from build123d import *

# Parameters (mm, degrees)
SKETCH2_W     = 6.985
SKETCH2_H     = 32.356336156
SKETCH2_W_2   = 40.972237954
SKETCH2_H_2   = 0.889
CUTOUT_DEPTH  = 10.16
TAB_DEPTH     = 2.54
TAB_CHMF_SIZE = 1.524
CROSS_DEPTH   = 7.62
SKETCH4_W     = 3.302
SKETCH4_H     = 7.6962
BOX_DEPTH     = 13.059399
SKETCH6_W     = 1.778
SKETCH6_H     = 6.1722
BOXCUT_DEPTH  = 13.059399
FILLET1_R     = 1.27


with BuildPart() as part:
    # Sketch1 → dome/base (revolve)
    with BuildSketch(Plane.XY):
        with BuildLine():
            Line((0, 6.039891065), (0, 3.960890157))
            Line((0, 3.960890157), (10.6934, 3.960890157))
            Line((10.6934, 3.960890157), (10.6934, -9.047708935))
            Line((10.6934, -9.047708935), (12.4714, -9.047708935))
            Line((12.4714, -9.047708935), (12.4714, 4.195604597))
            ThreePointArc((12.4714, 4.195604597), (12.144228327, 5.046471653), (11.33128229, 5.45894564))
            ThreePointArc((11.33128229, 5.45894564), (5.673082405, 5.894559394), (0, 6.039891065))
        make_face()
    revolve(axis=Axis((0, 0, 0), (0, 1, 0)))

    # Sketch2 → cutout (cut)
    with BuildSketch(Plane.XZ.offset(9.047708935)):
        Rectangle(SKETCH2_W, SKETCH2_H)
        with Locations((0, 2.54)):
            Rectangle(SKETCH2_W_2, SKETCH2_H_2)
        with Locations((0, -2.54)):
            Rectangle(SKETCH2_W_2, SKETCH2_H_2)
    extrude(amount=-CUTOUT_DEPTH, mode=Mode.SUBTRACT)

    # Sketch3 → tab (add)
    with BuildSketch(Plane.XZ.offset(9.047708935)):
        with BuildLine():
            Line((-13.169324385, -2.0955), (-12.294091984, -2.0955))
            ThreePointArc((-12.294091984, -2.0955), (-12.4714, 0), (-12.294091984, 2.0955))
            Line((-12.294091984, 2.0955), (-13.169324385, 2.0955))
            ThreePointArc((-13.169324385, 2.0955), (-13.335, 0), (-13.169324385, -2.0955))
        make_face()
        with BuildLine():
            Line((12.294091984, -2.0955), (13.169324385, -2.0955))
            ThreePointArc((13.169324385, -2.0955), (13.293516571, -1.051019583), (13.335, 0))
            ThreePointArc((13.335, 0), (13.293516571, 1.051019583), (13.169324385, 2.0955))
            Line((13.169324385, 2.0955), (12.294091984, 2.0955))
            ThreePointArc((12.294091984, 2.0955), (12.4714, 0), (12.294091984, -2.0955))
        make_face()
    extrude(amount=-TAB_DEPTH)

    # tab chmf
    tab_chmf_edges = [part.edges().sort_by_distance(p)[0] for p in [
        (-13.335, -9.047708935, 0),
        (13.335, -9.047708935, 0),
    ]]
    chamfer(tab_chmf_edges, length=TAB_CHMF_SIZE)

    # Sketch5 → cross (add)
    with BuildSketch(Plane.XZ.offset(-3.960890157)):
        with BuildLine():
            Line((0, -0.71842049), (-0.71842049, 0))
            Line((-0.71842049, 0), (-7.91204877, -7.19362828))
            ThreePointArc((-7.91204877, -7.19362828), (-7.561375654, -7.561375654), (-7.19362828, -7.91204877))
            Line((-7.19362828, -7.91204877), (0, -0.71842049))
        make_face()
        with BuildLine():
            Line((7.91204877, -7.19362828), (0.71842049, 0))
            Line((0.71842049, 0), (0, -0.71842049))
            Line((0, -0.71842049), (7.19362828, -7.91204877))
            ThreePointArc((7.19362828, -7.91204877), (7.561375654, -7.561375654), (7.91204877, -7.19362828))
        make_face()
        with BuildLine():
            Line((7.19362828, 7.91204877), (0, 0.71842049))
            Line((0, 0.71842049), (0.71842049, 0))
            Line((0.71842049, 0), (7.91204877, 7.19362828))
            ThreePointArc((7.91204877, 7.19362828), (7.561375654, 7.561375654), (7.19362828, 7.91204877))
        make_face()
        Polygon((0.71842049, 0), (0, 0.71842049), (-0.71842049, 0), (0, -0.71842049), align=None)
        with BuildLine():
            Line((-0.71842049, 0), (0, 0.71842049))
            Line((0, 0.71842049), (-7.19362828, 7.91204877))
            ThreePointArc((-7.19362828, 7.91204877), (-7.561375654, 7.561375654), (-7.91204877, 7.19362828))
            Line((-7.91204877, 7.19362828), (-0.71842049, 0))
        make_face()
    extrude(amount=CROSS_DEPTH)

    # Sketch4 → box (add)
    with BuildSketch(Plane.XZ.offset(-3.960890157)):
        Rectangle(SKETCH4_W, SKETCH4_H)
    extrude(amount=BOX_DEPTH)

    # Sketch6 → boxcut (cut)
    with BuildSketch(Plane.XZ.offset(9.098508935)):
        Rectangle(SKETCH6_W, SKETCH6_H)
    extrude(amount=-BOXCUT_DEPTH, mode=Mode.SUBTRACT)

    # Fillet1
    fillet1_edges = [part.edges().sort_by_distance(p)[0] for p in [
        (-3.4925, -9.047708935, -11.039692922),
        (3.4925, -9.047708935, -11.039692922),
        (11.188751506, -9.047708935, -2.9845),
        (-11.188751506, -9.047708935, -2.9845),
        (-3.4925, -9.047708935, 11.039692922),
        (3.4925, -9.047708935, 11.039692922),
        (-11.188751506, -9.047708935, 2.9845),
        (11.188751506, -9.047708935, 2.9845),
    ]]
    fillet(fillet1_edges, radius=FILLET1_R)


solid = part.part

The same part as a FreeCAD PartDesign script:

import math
import FreeCAD as App
import Part
import Sketcher
Q = App.Units.Quantity


def edges_at(feature, points):
    """Names of the edges that pass closest to the given points."""
    edges = feature.Shape.Edges
    near = lambda p: min(range(len(edges)), key=lambda i: edges[i].distToShape(Part.Vertex(*p))[0])
    return sorted({f"Edge{near(p) + 1}" for p in points})


def add_polygon(sketch, points):
    """Adds a closed chain of lines whose ends are joined by coincident constraints."""
    first, n = sketch.GeometryCount, len(points)
    for a, b in zip(points, points[1:] + points[:1]):
        sketch.addGeometry(Part.LineSegment(App.Vector(*a, 0), App.Vector(*b, 0)), False)
    for i in range(n):
        sketch.addConstraint(Sketcher.Constraint("Coincident", first + i, 2, first + (i + 1) % n, 1))

doc = App.newDocument("Part")
params = doc.addObject("Spreadsheet::Sheet", "Params")
for row, (alias, value) in enumerate([
    ("sketch1_radius", "0.05 in"),
    ("sketch1_width", "0.07 in"),
    ("sketch1_width2", "0.421 in"),
    ("revolution_angle", "360 deg"),
    ("sketch2_width", "0.275 in"),
    ("sketch2_height", "0.035 in"),
    ("pocket1_length", "0.4 in"),
    ("sketch3_radius", "0.491 in"),
    ("sketch3_radius2", "0.525 in"),
    ("pad1_length", "0.1 in"),
    ("chamfer_size", "0.06 in"),
    ("sketch4_radius", "0.421 in"),
    ("pad2_length", "0.3 in"),
    ("sketch5_width", "0.13 in"),
    ("sketch5_height", "0.303 in"),
    ("pad3_length", "13.059399 mm"),
    ("sketch6_width", "0.07 in"),
    ("sketch6_height", "0.243 in"),
    ("pocket2_length", "13.059399 mm"),
    ("fillet_radius", "0.05 in"),
], start=1):
    params.set(f"A{row}", alias)
    params.set(f"B{row}", "=" + value)
    params.setAlias(f"B{row}", alias)

body = doc.addObject("PartDesign::Body", "Body")

# Sketch on XY plane
sketch1 = body.newObject("Sketcher::SketchObject", "Sketch")
sketch1.AttachmentSupport = (doc.getObject("XY_Plane"), [""])
sketch1.MapMode = "FlatFace"
sketch1.addGeometry(Part.LineSegment(App.Vector(0, 6.039891, 0), App.Vector(0, 3.96089, 0)), False)
sketch1.addGeometry(Part.LineSegment(App.Vector(0, 3.96089, 0), App.Vector(10.6934, 3.96089, 0)), False)
sketch1.addGeometry(Part.LineSegment(App.Vector(10.6934, 3.96089, 0), App.Vector(10.6934, -9.047709, 0)), False)
sketch1.addGeometry(Part.LineSegment(App.Vector(10.6934, -9.047709, 0), App.Vector(12.4714, -9.047709, 0)), False)
sketch1.addGeometry(Part.LineSegment(App.Vector(12.4714, -9.047709, 0), App.Vector(12.4714, 4.195605, 0)), False)
sketch1.addGeometry(Part.ArcOfCircle(Part.Circle(App.Vector(11.2014, 4.195605, 0), App.Vector(0, 0, 1), 1.27), math.radians(0), math.radians(84.130125)), False)
sketch1.addGeometry(Part.ArcOfCircle(Part.Circle(App.Vector(0, -104.758345, 0), App.Vector(0, 0, 1), 110.798236), math.radians(84.130125), math.radians(90)), False)
sketch1.addConstraint(Sketcher.Constraint("Coincident", 0, 2, 1, 1))
sketch1.addConstraint(Sketcher.Constraint("Coincident", 1, 2, 2, 1))
sketch1.addConstraint(Sketcher.Constraint("Coincident", 2, 2, 3, 1))
sketch1.addConstraint(Sketcher.Constraint("Coincident", 3, 2, 4, 1))
sketch1.addConstraint(Sketcher.Constraint("Tangent", 4, 2, 5, 1))
sketch1.addConstraint(Sketcher.Constraint("Tangent", 5, 2, 6, 1))
sketch1.addConstraint(Sketcher.Constraint("Coincident", 6, 2, 0, 1))
sketch1.addConstraint(Sketcher.Constraint("Vertical", 0))
sketch1.addConstraint(Sketcher.Constraint("Horizontal", 1))
sketch1.addConstraint(Sketcher.Constraint("Vertical", 2))
sketch1.addConstraint(Sketcher.Constraint("Horizontal", 3))
sketch1.addConstraint(Sketcher.Constraint("Vertical", 4))
sketch1.addConstraint(Sketcher.Constraint("PointOnObject", 6, 3, -2))
sketch1.addConstraint(Sketcher.Constraint("PointOnObject", 0, 2, -2))
sketch1.addConstraint(Sketcher.Constraint("Radius", 5, Q("0.05 in")))
sketch1.addConstraint(Sketcher.Constraint("DistanceX", 3, 1, 3, 2, Q("0.07 in")))
sketch1.addConstraint(Sketcher.Constraint("DistanceX", 1, 1, 1, 2, Q("0.421 in")))
sketch1.addConstraint(Sketcher.Constraint("DistanceY", 0, 2, 0, 1, Q("2.079001 mm")))
sketch1.addConstraint(Sketcher.Constraint("DistanceY", 2, 2, 2, 1, Q("13.008599 mm")))
sketch1.addConstraint(Sketcher.Constraint("Radius", 6, Q("110.798236 mm")))
sketch1.addConstraint(Sketcher.Constraint("DistanceY", -1, 1, 0, 2, Q("3.96089 mm")))
sketch1.setExpression("Constraints[14]", "Params.sketch1_radius")
sketch1.setExpression("Constraints[15]", "Params.sketch1_width")
sketch1.setExpression("Constraints[16]", "Params.sketch1_width2")
revolution = body.newObject("PartDesign::Revolution", "Revolution")
revolution.Profile = sketch1
revolution.ReferenceAxis = (sketch1, ["V_Axis"])
revolution.setExpression("Angle", "Params.revolution_angle")

# Sketch on XZ plane
sketch2 = body.newObject("Sketcher::SketchObject", "Sketch001")
sketch2.AttachmentSupport = (doc.getObject("XZ_Plane"), [""])
sketch2.MapMode = "FlatFace"
sketch2.AttachmentOffset = App.Placement(App.Vector(0, 0, 9.047709), App.Rotation())
add_polygon(sketch2, [(-3.4925, -2.9845), (-3.4925, -16.178168), (3.4925, -16.178168), (3.4925, -2.9845), (20.486119, -2.9845), (20.486119, -2.0955), (3.4925, -2.0955), (3.4925, 2.0955), (20.486119, 2.0955), (20.486119, 2.9845), (3.4925, 2.9845), (3.4925, 16.178168), (-3.4925, 16.178168), (-3.4925, 2.9845), (-20.486119, 2.9845), (-20.486119, 2.0955), (-3.4925, 2.0955), (-3.4925, -2.0955), (-20.486119, -2.0955), (-20.486119, -2.9845)])  # lines 0-19
sketch2.addConstraint(Sketcher.Constraint("Vertical", 0))
sketch2.addConstraint(Sketcher.Constraint("Horizontal", 1))
sketch2.addConstraint(Sketcher.Constraint("Vertical", 2))
sketch2.addConstraint(Sketcher.Constraint("Horizontal", 3))
sketch2.addConstraint(Sketcher.Constraint("Vertical", 4))
sketch2.addConstraint(Sketcher.Constraint("Horizontal", 5))
sketch2.addConstraint(Sketcher.Constraint("Vertical", 6))
sketch2.addConstraint(Sketcher.Constraint("Horizontal", 7))
sketch2.addConstraint(Sketcher.Constraint("Vertical", 8))
sketch2.addConstraint(Sketcher.Constraint("Horizontal", 9))
sketch2.addConstraint(Sketcher.Constraint("Vertical", 10))
sketch2.addConstraint(Sketcher.Constraint("Horizontal", 11))
sketch2.addConstraint(Sketcher.Constraint("Vertical", 12))
sketch2.addConstraint(Sketcher.Constraint("Horizontal", 13))
sketch2.addConstraint(Sketcher.Constraint("Vertical", 14))
sketch2.addConstraint(Sketcher.Constraint("Horizontal", 15))
sketch2.addConstraint(Sketcher.Constraint("Vertical", 16))
sketch2.addConstraint(Sketcher.Constraint("Horizontal", 17))
sketch2.addConstraint(Sketcher.Constraint("Vertical", 18))
sketch2.addConstraint(Sketcher.Constraint("Horizontal", 19))
sketch2.addConstraint(Sketcher.Constraint("Symmetric", 0, 2, 10, 2, -1, 1))
sketch2.addConstraint(Sketcher.Constraint("Symmetric", 2, 2, 12, 2, -1, 1))
sketch2.addConstraint(Sketcher.Constraint("Symmetric", 4, 2, 14, 2, -1, 1))
sketch2.addConstraint(Sketcher.Constraint("Symmetric", 6, 2, 16, 2, -1, 1))
sketch2.addConstraint(Sketcher.Constraint("Symmetric", 8, 2, 18, 2, -1, 1))
sketch2.addConstraint(Sketcher.Constraint("Symmetric", 9, 2, 12, 2, -2))
sketch2.addConstraint(Sketcher.Constraint("Symmetric", 7, 2, 14, 2, -2))
sketch2.addConstraint(Sketcher.Constraint("Vertical", 2, 2, 5, 2))
sketch2.addConstraint(Sketcher.Constraint("DistanceY", 2, 2, 6, 2, Q("0.2 in")))
sketch2.addConstraint(Sketcher.Constraint("DistanceX", 1, 1, 1, 2, Q("0.275 in")))
sketch2.addConstraint(Sketcher.Constraint("DistanceY", 4, 1, 4, 2, Q("0.035 in")))
sketch2.addConstraint(Sketcher.Constraint("DistanceX", 3, 1, 3, 2, Q("16.993619 mm")))
sketch2.addConstraint(Sketcher.Constraint("DistanceY", 0, 2, 0, 1, Q("13.193668 mm")))
sketch2.setExpression("Constraints[49]", "Params.sketch2_width")
sketch2.setExpression("Constraints[50]", "Params.sketch2_height")
pocket1 = body.newObject("PartDesign::Pocket", "Pocket")
pocket1.Profile = sketch2
pocket1.setExpression("Length", "Params.pocket1_length")

# Sketch on XZ plane
sketch3 = body.newObject("Sketcher::SketchObject", "Sketch002")
sketch3.AttachmentSupport = (doc.getObject("XZ_Plane"), [""])
sketch3.MapMode = "FlatFace"
sketch3.AttachmentOffset = App.Placement(App.Vector(0, 0, 9.047709), App.Rotation())
sketch3.addGeometry(Part.LineSegment(App.Vector(-13.169324, -2.0955, 0), App.Vector(-12.294092, -2.0955, 0)), False)
sketch3.addGeometry(Part.ArcOfCircle(Part.Circle(App.Vector(0, 0, 0), App.Vector(0, 0, 1), 12.4714), math.radians(170.327024), math.radians(189.672976)), False)
sketch3.addGeometry(Part.LineSegment(App.Vector(-12.294092, 2.0955, 0), App.Vector(-13.169324, 2.0955, 0)), False)
sketch3.addGeometry(Part.ArcOfCircle(Part.Circle(App.Vector(0, 0, 0), App.Vector(0, 0, 1), 13.335), math.radians(170.958904), math.radians(189.041096)), False)
sketch3.addGeometry(Part.LineSegment(App.Vector(12.294092, -2.0955, 0), App.Vector(13.169324, -2.0955, 0)), False)
sketch3.addGeometry(Part.ArcOfCircle(Part.Circle(App.Vector(0, 0, 0), App.Vector(0, 0, 1), 13.335), math.radians(-9.041096), math.radians(0)), False)
sketch3.addGeometry(Part.ArcOfCircle(Part.Circle(App.Vector(0, 0, 0), App.Vector(0, 0, 1), 13.335), math.radians(0), math.radians(9.041096)), False)
sketch3.addGeometry(Part.LineSegment(App.Vector(13.169324, 2.0955, 0), App.Vector(12.294092, 2.0955, 0)), False)
sketch3.addGeometry(Part.ArcOfCircle(Part.Circle(App.Vector(0, 0, 0), App.Vector(0, 0, 1), 12.4714), math.radians(-9.672976), math.radians(9.672976)), False)
sketch3.addConstraint(Sketcher.Constraint("Coincident", 0, 2, 1, 2))
sketch3.addConstraint(Sketcher.Constraint("Coincident", 1, 1, 2, 1))
sketch3.addConstraint(Sketcher.Constraint("Coincident", 2, 2, 3, 1))
sketch3.addConstraint(Sketcher.Constraint("Coincident", 3, 2, 0, 1))
sketch3.addConstraint(Sketcher.Constraint("Coincident", 4, 2, 5, 1))
sketch3.addConstraint(Sketcher.Constraint("Tangent", 5, 2, 6, 1))
sketch3.addConstraint(Sketcher.Constraint("Coincident", 6, 2, 7, 1))
sketch3.addConstraint(Sketcher.Constraint("Coincident", 7, 2, 8, 2))
sketch3.addConstraint(Sketcher.Constraint("Coincident", 8, 1, 4, 1))
sketch3.addConstraint(Sketcher.Constraint("Horizontal", 0))
sketch3.addConstraint(Sketcher.Constraint("Horizontal", 2))
sketch3.addConstraint(Sketcher.Constraint("Horizontal", 4))
sketch3.addConstraint(Sketcher.Constraint("Horizontal", 7))
sketch3.addConstraint(Sketcher.Constraint("Coincident", 1, 3, -1, 1))
sketch3.addConstraint(Sketcher.Constraint("Coincident", 3, 3, -1, 1))
sketch3.addConstraint(Sketcher.Constraint("Coincident", 5, 3, -1, 1))
sketch3.addConstraint(Sketcher.Constraint("Coincident", 8, 3, -1, 1))
sketch3.addConstraint(Sketcher.Constraint("Equal", 3, 5))
sketch3.addConstraint(Sketcher.Constraint("Equal", 5, 6))
sketch3.addConstraint(Sketcher.Constraint("Equal", 1, 8))
sketch3.addConstraint(Sketcher.Constraint("PointOnObject", 5, 2, -1))
sketch3.addConstraint(Sketcher.Constraint("Horizontal", 3, 2, 4, 2))
sketch3.addConstraint(Sketcher.Constraint("Horizontal", 2, 2, 6, 2))
sketch3.addConstraint(Sketcher.Constraint("Vertical", 0, 2, 1, 1))
sketch3.addConstraint(Sketcher.Constraint("Radius", 1, Q("0.491 in")))
sketch3.addConstraint(Sketcher.Constraint("Radius", 3, Q("0.525 in")))
sketch3.addConstraint(Sketcher.Constraint("DistanceY", 0, 2, 1, 1, Q("0.165 in")))
sketch3.setExpression("Constraints[24]", "Params.sketch3_radius")
sketch3.setExpression("Constraints[25]", "Params.sketch3_radius2")
pad1 = body.newObject("PartDesign::Pad", "Pad")
pad1.Profile = sketch3
pad1.setExpression("Length", "Params.pad1_length")
pad1.Reversed = True
doc.recompute()

chamfer = body.newObject("PartDesign::Chamfer", "Chamfer")
chamfer.Base = (pad1, edges_at(pad1, [(-13.335, -9.048, 0), (13.294, -9.048, -1.051)]))
chamfer.setExpression("Size", "Params.chamfer_size")

# Sketch on XZ plane
sketch4 = body.newObject("Sketcher::SketchObject", "Sketch003")
sketch4.AttachmentSupport = (doc.getObject("XZ_Plane"), [""])
sketch4.MapMode = "FlatFace"
sketch4.AttachmentOffset = App.Placement(App.Vector(0, 0, -3.96089), App.Rotation())
sketch4.addGeometry(Part.ArcOfCircle(Part.Circle(App.Vector(0, 0, 0), App.Vector(0, 0, 1), 10.6934), math.radians(-137.722915), math.radians(-132.277085)), False)
sketch4.addGeometry(Part.LineSegment(App.Vector(-7.193628, -7.912049, 0), App.Vector(0, -0.71842, 0)), False)
sketch4.addGeometry(Part.LineSegment(App.Vector(0, -0.71842, 0), App.Vector(7.193628, -7.912049, 0)), False)
sketch4.addGeometry(Part.ArcOfCircle(Part.Circle(App.Vector(0, 0, 0), App.Vector(0, 0, 1), 10.6934), math.radians(-47.722915), math.radians(-42.277085)), False)
sketch4.addGeometry(Part.LineSegment(App.Vector(7.912049, -7.193628, 0), App.Vector(0.71842, 0, 0)), False)
sketch4.addGeometry(Part.LineSegment(App.Vector(0.71842, 0, 0), App.Vector(7.912049, 7.193628, 0)), False)
sketch4.addGeometry(Part.ArcOfCircle(Part.Circle(App.Vector(0, 0, 0), App.Vector(0, 0, 1), 10.6934), math.radians(42.277085), math.radians(47.722915)), False)
sketch4.addGeometry(Part.LineSegment(App.Vector(7.193628, 7.912049, 0), App.Vector(0, 0.71842, 0)), False)
sketch4.addGeometry(Part.LineSegment(App.Vector(0, 0.71842, 0), App.Vector(-7.193628, 7.912049, 0)), False)
sketch4.addGeometry(Part.ArcOfCircle(Part.Circle(App.Vector(0, 0, 0), App.Vector(0, 0, 1), 10.6934), math.radians(132.277085), math.radians(137.722915)), False)
sketch4.addGeometry(Part.LineSegment(App.Vector(-7.912049, 7.193628, 0), App.Vector(-0.71842, 0, 0)), False)
sketch4.addGeometry(Part.LineSegment(App.Vector(-0.71842, 0, 0), App.Vector(-7.912049, -7.193628, 0)), False)
sketch4.addConstraint(Sketcher.Constraint("Coincident", 0, 2, 1, 1))
sketch4.addConstraint(Sketcher.Constraint("Coincident", 1, 2, 2, 1))
sketch4.addConstraint(Sketcher.Constraint("Coincident", 2, 2, 3, 1))
sketch4.addConstraint(Sketcher.Constraint("Coincident", 3, 2, 4, 1))
sketch4.addConstraint(Sketcher.Constraint("Coincident", 4, 2, 5, 1))
sketch4.addConstraint(Sketcher.Constraint("Coincident", 5, 2, 6, 1))
sketch4.addConstraint(Sketcher.Constraint("Coincident", 6, 2, 7, 1))
sketch4.addConstraint(Sketcher.Constraint("Coincident", 7, 2, 8, 1))
sketch4.addConstraint(Sketcher.Constraint("Coincident", 8, 2, 9, 1))
sketch4.addConstraint(Sketcher.Constraint("Coincident", 9, 2, 10, 1))
sketch4.addConstraint(Sketcher.Constraint("Coincident", 10, 2, 11, 1))
sketch4.addConstraint(Sketcher.Constraint("Coincident", 11, 2, 0, 1))
sketch4.addConstraint(Sketcher.Constraint("Coincident", 0, 3, -1, 1))
sketch4.addConstraint(Sketcher.Constraint("Coincident", 3, 3, -1, 1))
sketch4.addConstraint(Sketcher.Constraint("Coincident", 6, 3, -1, 1))
sketch4.addConstraint(Sketcher.Constraint("Coincident", 9, 3, -1, 1))
sketch4.addConstraint(Sketcher.Constraint("Equal", 0, 3))
sketch4.addConstraint(Sketcher.Constraint("Equal", 3, 6))
sketch4.addConstraint(Sketcher.Constraint("Equal", 6, 9))
sketch4.addConstraint(Sketcher.Constraint("Symmetric", 1, 2, 7, 2, -1, 1))
sketch4.addConstraint(Sketcher.Constraint("Symmetric", 4, 2, 10, 2, -1, 1))
sketch4.addConstraint(Sketcher.Constraint("PointOnObject", 1, 2, -2))
sketch4.addConstraint(Sketcher.Constraint("PointOnObject", 4, 2, -1))
sketch4.addConstraint(Sketcher.Constraint("Perpendicular", 1, 2))
sketch4.addConstraint(Sketcher.Constraint("Parallel", 2, 4))
sketch4.addConstraint(Sketcher.Constraint("Perpendicular", 4, 5))
sketch4.addConstraint(Sketcher.Constraint("Parallel", 5, 7))
sketch4.addConstraint(Sketcher.Constraint("Perpendicular", 7, 8))
sketch4.addConstraint(Sketcher.Constraint("Parallel", 8, 10))
sketch4.addConstraint(Sketcher.Constraint("Perpendicular", 10, 11))
sketch4.addConstraint(Sketcher.Constraint("Horizontal", 0, 2, 2, 2))
sketch4.addConstraint(Sketcher.Constraint("Equal", 2, 4))
sketch4.addConstraint(Sketcher.Constraint("Radius", 0, Q("0.421 in")))
sketch4.addConstraint(Sketcher.Constraint("DistanceX", 0, 2, -1, 1, Q("7.193628 mm")))
sketch4.setExpression("Constraints[32]", "Params.sketch4_radius")
pad2 = body.newObject("PartDesign::Pad", "Pad001")
pad2.Profile = sketch4
pad2.setExpression("Length", "Params.pad2_length")

# Sketch on XZ plane
sketch5 = body.newObject("Sketcher::SketchObject", "Sketch004")
sketch5.AttachmentSupport = (doc.getObject("XZ_Plane"), [""])
sketch5.MapMode = "FlatFace"
sketch5.AttachmentOffset = App.Placement(App.Vector(0, 0, -3.96089), App.Rotation())
add_polygon(sketch5, [(-1.651, 3.8481), (-1.651, -3.8481), (1.651, -3.8481), (1.651, 3.8481)])  # lines 0-3
sketch5.addConstraint(Sketcher.Constraint("Vertical", 0))
sketch5.addConstraint(Sketcher.Constraint("Horizontal", 1))
sketch5.addConstraint(Sketcher.Constraint("Vertical", 2))
sketch5.addConstraint(Sketcher.Constraint("Horizontal", 3))
sketch5.addConstraint(Sketcher.Constraint("Symmetric", 0, 2, 2, 2, -1, 1))
sketch5.addConstraint(Sketcher.Constraint("DistanceX", 1, 1, 1, 2, Q("0.13 in")))
sketch5.addConstraint(Sketcher.Constraint("DistanceY", 0, 2, 0, 1, Q("0.303 in")))
sketch5.setExpression("Constraints[9]", "Params.sketch5_width")
sketch5.setExpression("Constraints[10]", "Params.sketch5_height")
pad3 = body.newObject("PartDesign::Pad", "Pad002")
pad3.Profile = sketch5
pad3.setExpression("Length", "Params.pad3_length")

# Sketch on XZ plane
sketch6 = body.newObject("Sketcher::SketchObject", "Sketch005")
sketch6.AttachmentSupport = (doc.getObject("XZ_Plane"), [""])
sketch6.MapMode = "FlatFace"
sketch6.AttachmentOffset = App.Placement(App.Vector(0, 0, 9.098509), App.Rotation())
add_polygon(sketch6, [(-0.889, 3.0861), (-0.889, -3.0861), (0.889, -3.0861), (0.889, 3.0861)])  # lines 0-3
sketch6.addConstraint(Sketcher.Constraint("Vertical", 0))
sketch6.addConstraint(Sketcher.Constraint("Horizontal", 1))
sketch6.addConstraint(Sketcher.Constraint("Vertical", 2))
sketch6.addConstraint(Sketcher.Constraint("Horizontal", 3))
sketch6.addConstraint(Sketcher.Constraint("Symmetric", 0, 2, 2, 2, -1, 1))
sketch6.addConstraint(Sketcher.Constraint("DistanceX", 1, 1, 1, 2, Q("0.07 in")))
sketch6.addConstraint(Sketcher.Constraint("DistanceY", 0, 2, 0, 1, Q("0.243 in")))
sketch6.setExpression("Constraints[9]", "Params.sketch6_width")
sketch6.setExpression("Constraints[10]", "Params.sketch6_height")
pocket2 = body.newObject("PartDesign::Pocket", "Pocket001")
pocket2.Profile = sketch6
pocket2.setExpression("Length", "Params.pocket2_length")
doc.recompute()

fillet = body.newObject("PartDesign::Fillet", "Fillet")
fillet.Base = (pocket2, edges_at(pocket2, [
    (-3.493, -9.048, -11.04),
    (3.493, -9.048, -11.04),
    (11.189, -9.048, -2.985),
    (-11.189, -9.048, -2.985),
    (-3.493, -9.048, 11.04),
    (3.493, -9.048, 11.04),
    (-11.189, -9.048, 2.985),
    (11.189, -9.048, 2.985),
]))
fillet.setExpression("Radius", "Params.fillet_radius")

doc.recompute()
